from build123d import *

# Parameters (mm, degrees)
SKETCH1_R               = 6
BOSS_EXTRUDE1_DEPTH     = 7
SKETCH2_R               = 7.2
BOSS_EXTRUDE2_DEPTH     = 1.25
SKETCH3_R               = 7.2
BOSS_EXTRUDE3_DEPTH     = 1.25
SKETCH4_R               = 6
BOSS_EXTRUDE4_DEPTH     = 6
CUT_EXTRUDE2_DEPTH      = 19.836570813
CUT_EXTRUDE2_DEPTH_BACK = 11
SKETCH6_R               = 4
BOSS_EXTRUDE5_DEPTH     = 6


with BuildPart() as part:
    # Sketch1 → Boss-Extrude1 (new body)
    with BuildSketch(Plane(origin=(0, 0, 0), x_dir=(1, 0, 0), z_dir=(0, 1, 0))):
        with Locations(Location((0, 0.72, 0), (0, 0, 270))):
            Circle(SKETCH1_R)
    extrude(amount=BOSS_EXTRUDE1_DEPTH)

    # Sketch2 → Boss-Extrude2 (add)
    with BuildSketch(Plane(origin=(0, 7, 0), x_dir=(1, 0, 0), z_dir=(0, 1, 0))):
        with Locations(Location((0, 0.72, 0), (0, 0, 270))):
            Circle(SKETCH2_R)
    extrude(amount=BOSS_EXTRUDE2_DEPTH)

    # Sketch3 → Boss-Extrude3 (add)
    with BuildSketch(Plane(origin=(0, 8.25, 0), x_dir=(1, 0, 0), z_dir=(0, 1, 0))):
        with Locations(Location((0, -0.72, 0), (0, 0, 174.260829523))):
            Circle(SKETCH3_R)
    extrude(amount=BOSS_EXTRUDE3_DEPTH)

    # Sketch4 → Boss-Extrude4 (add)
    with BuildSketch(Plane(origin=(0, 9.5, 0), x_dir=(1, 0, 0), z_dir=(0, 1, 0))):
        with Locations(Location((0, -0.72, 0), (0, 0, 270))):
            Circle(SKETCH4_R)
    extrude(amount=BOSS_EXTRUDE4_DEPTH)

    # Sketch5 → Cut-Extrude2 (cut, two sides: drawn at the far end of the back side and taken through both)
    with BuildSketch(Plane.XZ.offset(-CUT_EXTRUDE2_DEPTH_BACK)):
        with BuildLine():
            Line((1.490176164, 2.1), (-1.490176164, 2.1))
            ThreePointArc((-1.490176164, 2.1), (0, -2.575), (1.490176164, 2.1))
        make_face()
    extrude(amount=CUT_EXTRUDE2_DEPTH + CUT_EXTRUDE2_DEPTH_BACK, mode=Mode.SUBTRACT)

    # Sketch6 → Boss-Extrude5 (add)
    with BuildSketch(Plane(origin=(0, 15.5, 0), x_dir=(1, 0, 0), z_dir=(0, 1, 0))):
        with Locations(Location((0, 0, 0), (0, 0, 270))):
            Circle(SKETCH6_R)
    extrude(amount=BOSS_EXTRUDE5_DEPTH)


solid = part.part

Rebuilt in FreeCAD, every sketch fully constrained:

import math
import FreeCAD as App
import Part
import Sketcher

doc = App.newDocument("Part")
params = doc.addObject("Spreadsheet::Sheet", "Params")
for row, (alias, value) in enumerate([
    ("sketch1_diameter", "12 mm"),
    ("pad1_length", "7 mm"),
    ("sketch2_diameter", "14.4 mm"),
    ("pad2_length", "1.25 mm"),
    ("sketch3_diameter", "14.4 mm"),
    ("pad3_length", "1.25 mm"),
    ("sketch4_diameter", "12 mm"),
    ("pad4_length", "6 mm"),
    ("pocket1_length", "19.836571 mm"),
    ("pocket1_length2", "11 mm"),
    ("sketch6_diameter", "8 mm"),
    ("pad5_length", "6 mm"),
], start=1):
    params.set(f"A{row}", alias)
    params.set(f"B{row}", "=" + value)
    params.setAlias(f"B{row}", alias)

body = doc.addObject("PartDesign::Body", "Body")

# Sketch on XZ plane
sketch1 = body.newObject("Sketcher::SketchObject", "Sketch")
sketch1.AttachmentSupport = (doc.getObject("XZ_Plane"), [""])
sketch1.MapMode = "FlatFace"
sketch1.addGeometry(Part.Circle(App.Vector(0, -1, 0), App.Vector(0, 0, 1), 6), False)
sketch1.addConstraint(Sketcher.Constraint("PointOnObject", 0, 3, -2))
sketch1.addConstraint(Sketcher.Constraint("Diameter", 0, 12.0))
sketch1.addConstraint(Sketcher.Constraint("DistanceY", 0, 3, -1, 1, 0.72))
sketch1.setExpression("Constraints[1]", "Params.sketch1_diameter")
pad1 = body.newObject("PartDesign::Pad", "Pad")
pad1.Profile = sketch1
pad1.setExpression("Length", "Params.pad1_length")
pad1.Reversed = True

# Sketch on XZ plane
sketch2 = body.newObject("Sketcher::SketchObject", "Sketch001")
sketch2.AttachmentSupport = (doc.getObject("XZ_Plane"), [""])
sketch2.MapMode = "FlatFace"
sketch2.AttachmentOffset = App.Placement(App.Vector(0, 0, -7), App.Rotation())
sketch2.addGeometry(Part.Circle(App.Vector(0, -1, 0), App.Vector(0, 0, 1), 7), False)
sketch2.addConstraint(Sketcher.Constraint("PointOnObject", 0, 3, -2))
sketch2.addConstraint(Sketcher.Constraint("Diameter", 0, 14.4))
sketch2.addConstraint(Sketcher.Constraint("DistanceY", 0, 3, -1, 1, 0.72))
sketch2.setExpression("Constraints[1]", "Params.sketch2_diameter")
pad2 = body.newObject("PartDesign::Pad", "Pad001")
pad2.Profile = sketch2
pad2.setExpression("Length", "Params.pad2_length")
pad2.Reversed = True

# Sketch on XZ plane
sketch3 = body.newObject("Sketcher::SketchObject", "Sketch002")
sketch3.AttachmentSupport = (doc.getObject("XZ_Plane"), [""])
sketch3.MapMode = "FlatFace"
sketch3.AttachmentOffset = App.Placement(App.Vector(0, 0, -8.25), App.Rotation())
sketch3.addGeometry(Part.Circle(App.Vector(0, 1, 0), App.Vector(0, 0, 1), 7), False)
sketch3.addConstraint(Sketcher.Constraint("PointOnObject", 0, 3, -2))
sketch3.addConstraint(Sketcher.Constraint("Diameter", 0, 14.4))
sketch3.addConstraint(Sketcher.Constraint("DistanceY", -1, 1, 0, 3, 0.72))
sketch3.setExpression("Constraints[1]", "Params.sketch3_diameter")
pad3 = body.newObject("PartDesign::Pad", "Pad002")
pad3.Profile = sketch3
pad3.setExpression("Length", "Params.pad3_length")
pad3.Reversed = True

# Sketch on XZ plane
sketch4 = body.newObject("Sketcher::SketchObject", "Sketch003")
sketch4.AttachmentSupport = (doc.getObject("XZ_Plane"), [""])
sketch4.MapMode = "FlatFace"
sketch4.AttachmentOffset = App.Placement(App.Vector(0, 0, -9.5), App.Rotation())
sketch4.addGeometry(Part.Circle(App.Vector(0, 1, 0), App.Vector(0, 0, 1), 6), False)
sketch4.addConstraint(Sketcher.Constraint("PointOnObject", 0, 3, -2))
sketch4.addConstraint(Sketcher.Constraint("Diameter", 0, 12.0))
sketch4.addConstraint(Sketcher.Constraint("DistanceY", -1, 1, 0, 3, 0.72))
sketch4.setExpression("Constraints[1]", "Params.sketch4_diameter")
pad4 = body.newObject("PartDesign::Pad", "Pad003")
pad4.Profile = sketch4
pad4.setExpression("Length", "Params.pad4_length")
pad4.Reversed = True

# Sketch on XZ plane
sketch5 = body.newObject("Sketcher::SketchObject", "Sketch004")
sketch5.AttachmentSupport = (doc.getObject("XZ_Plane"), [""])
sketch5.MapMode = "FlatFace"
sketch5.addGeometry(Part.LineSegment(App.Vector(1.5, 2.1, 0), App.Vector(-1.5, 2.1, 0)), False)
sketch5.addGeometry(Part.ArcOfCircle(Part.Circle(App.Vector(0, 0, 0), App.Vector(0, 0, 1), 2.6), math.radians(125), math.radians(415)), False)
sketch5.addConstraint(Sketcher.Constraint("Coincident", 0, 1, 1, 2))
sketch5.addConstraint(Sketcher.Constraint("Coincident", 1, 1, 0, 2))
sketch5.addConstraint(Sketcher.Constraint("Horizontal", 0))
sketch5.addConstraint(Sketcher.Constraint("Coincident", 1, 3, -1, 1))
sketch5.addConstraint(Sketcher.Constraint("Radius", 1, 2.575))
sketch5.addConstraint(Sketcher.Constraint("DistanceY", -1, 1, 0, 1, 2.1))
pocket1 = body.newObject("PartDesign::Pocket", "Pocket")
pocket1.Profile = sketch5
pocket1.Type = "TwoLengths"
pocket1.setExpression("Length", "Params.pocket1_length")
pocket1.setExpression("Length2", "Params.pocket1_length2")
pocket1.Reversed = True

# Sketch on XZ plane
sketch6 = body.newObject("Sketcher::SketchObject", "Sketch005")
sketch6.AttachmentSupport = (doc.getObject("XZ_Plane"), [""])
sketch6.MapMode = "FlatFace"
sketch6.AttachmentOffset = App.Placement(App.Vector(0, 0, -15.5), App.Rotation())
sketch6.addGeometry(Part.Circle(App.Vector(0, 0, 0), App.Vector(0, 0, 1), 4), False)
sketch6.addConstraint(Sketcher.Constraint("Coincident", 0, 3, -1, 1))
sketch6.addConstraint(Sketcher.Constraint("Diameter", 0, 8.0))
sketch6.setExpression("Constraints[1]", "Params.sketch6_diameter")
pad5 = body.newObject("PartDesign::Pad", "Pad004")
pad5.Profile = sketch6
pad5.setExpression("Length", "Params.pad5_length")
pad5.Reversed = True

doc.recompute()
